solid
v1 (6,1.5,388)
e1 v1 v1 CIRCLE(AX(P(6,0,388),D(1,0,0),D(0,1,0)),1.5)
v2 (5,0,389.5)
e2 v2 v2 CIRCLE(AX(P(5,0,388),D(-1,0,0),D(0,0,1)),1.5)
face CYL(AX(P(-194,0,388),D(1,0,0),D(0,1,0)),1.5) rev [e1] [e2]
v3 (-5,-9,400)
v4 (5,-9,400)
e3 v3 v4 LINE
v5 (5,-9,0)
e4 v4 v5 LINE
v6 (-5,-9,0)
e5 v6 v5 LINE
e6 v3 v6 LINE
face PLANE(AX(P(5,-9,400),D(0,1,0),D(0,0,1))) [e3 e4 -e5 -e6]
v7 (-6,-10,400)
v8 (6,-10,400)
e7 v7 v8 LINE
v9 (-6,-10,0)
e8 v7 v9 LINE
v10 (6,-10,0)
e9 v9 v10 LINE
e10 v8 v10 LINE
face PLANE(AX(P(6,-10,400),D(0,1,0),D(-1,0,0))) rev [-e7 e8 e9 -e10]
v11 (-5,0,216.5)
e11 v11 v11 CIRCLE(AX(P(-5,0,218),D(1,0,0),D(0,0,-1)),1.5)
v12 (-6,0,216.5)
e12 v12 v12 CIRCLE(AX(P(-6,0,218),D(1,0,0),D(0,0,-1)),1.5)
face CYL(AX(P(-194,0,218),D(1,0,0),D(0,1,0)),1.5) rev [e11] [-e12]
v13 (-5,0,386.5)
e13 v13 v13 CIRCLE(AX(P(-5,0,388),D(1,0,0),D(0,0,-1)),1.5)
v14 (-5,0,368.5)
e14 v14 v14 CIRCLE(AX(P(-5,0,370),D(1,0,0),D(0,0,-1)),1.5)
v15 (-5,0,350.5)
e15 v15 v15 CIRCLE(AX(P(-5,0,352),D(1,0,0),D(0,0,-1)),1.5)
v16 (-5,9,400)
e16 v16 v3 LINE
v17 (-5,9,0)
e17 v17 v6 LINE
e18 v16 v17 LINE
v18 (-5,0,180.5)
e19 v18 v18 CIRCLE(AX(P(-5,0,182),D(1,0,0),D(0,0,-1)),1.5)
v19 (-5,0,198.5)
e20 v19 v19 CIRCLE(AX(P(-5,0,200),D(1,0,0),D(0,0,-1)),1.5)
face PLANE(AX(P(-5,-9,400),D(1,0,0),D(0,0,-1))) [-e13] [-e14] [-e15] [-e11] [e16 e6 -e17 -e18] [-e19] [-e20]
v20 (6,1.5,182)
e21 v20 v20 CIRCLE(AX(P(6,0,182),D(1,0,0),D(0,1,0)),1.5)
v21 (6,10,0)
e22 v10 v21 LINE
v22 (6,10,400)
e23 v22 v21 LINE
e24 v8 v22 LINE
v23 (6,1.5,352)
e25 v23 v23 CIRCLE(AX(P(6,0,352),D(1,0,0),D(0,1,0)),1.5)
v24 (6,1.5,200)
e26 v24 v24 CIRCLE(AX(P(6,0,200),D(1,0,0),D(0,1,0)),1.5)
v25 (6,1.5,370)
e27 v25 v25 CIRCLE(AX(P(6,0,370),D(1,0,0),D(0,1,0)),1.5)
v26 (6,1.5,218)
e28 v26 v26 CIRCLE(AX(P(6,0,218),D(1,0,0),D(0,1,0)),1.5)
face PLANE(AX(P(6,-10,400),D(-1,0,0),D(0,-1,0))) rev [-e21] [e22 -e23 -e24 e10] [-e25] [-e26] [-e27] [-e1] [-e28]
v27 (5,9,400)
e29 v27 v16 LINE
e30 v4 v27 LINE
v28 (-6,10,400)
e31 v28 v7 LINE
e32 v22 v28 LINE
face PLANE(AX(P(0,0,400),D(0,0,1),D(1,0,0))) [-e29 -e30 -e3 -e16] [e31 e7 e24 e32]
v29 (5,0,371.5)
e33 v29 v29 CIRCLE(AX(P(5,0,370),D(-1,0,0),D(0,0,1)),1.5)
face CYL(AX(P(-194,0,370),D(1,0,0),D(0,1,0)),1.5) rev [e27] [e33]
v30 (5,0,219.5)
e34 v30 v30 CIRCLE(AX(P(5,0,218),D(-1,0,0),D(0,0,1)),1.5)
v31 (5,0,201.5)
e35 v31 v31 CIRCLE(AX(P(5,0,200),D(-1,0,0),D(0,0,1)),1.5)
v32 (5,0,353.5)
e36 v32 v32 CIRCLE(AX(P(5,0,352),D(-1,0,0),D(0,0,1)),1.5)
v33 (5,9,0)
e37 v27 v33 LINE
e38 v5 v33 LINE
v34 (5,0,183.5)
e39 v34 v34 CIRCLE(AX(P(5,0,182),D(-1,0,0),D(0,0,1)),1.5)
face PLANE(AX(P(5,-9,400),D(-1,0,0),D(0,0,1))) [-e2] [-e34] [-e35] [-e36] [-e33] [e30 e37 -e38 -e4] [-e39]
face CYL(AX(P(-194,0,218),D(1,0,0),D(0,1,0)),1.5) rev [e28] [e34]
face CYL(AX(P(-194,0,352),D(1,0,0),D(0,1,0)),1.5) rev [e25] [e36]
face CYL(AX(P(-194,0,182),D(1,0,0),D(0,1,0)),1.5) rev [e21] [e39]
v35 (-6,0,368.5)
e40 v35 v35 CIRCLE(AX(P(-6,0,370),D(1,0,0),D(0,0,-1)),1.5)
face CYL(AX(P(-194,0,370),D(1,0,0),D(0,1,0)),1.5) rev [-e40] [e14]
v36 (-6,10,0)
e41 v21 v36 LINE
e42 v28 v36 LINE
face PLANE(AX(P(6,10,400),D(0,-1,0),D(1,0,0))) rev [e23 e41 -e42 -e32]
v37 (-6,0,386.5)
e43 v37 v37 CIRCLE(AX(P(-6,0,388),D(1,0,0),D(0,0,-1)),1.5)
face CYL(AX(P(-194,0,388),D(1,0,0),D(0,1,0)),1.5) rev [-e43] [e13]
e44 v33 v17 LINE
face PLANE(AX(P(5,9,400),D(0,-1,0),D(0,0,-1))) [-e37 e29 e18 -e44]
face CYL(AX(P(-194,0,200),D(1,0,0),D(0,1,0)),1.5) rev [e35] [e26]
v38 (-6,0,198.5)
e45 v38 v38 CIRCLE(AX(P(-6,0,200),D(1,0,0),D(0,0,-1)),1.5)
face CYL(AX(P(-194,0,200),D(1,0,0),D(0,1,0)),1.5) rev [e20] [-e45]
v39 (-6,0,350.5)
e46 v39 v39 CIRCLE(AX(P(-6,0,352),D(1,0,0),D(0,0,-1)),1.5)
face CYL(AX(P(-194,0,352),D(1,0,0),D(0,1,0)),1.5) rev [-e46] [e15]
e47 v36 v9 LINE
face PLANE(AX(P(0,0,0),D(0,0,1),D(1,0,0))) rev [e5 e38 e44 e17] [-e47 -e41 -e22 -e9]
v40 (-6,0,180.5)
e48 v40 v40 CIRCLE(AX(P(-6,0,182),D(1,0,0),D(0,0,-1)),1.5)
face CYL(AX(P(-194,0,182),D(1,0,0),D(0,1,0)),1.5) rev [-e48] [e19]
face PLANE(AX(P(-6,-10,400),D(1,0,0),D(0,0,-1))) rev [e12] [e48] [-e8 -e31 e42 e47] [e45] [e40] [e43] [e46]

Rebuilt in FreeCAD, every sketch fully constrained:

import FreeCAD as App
import Part
import Sketcher
from FreeCAD import Vector

doc = App.newDocument("Part")
body = doc.addObject("PartDesign::Body", "Body")

# Sketch on XY plane
sketch1 = doc.addObject("Sketcher::SketchObject", "Sketch")
body.addObject(sketch1)
sketch1.AttachmentSupport = (doc.XY_Plane, [""])
sketch1.MapMode = "FlatFace"
sketch1.addGeometry(Part.LineSegment(Vector(-6, 10, 0), Vector(-6, -10, 0)), False)
sketch1.addGeometry(Part.LineSegment(Vector(-6, -10, 0), Vector(6, -10, 0)), False)
sketch1.addGeometry(Part.LineSegment(Vector(6, -10, 0), Vector(6, 10, 0)), False)
sketch1.addGeometry(Part.LineSegment(Vector(6, 10, 0), Vector(-6, 10, 0)), False)
sketch1.addGeometry(Part.LineSegment(Vector(5, -9, 0), Vector(-5, -9, 0)), False)
sketch1.addGeometry(Part.LineSegment(Vector(-5, -9, 0), Vector(-5, 9, 0)), False)
sketch1.addGeometry(Part.LineSegment(Vector(-5, 9, 0), Vector(5, 9, 0)), False)
sketch1.addGeometry(Part.LineSegment(Vector(5, 9, 0), Vector(5, -9, 0)), False)
sketch1.addConstraint(Sketcher.Constraint("Coincident", 0, 2, 1, 1))
sketch1.addConstraint(Sketcher.Constraint("Coincident", 1, 2, 2, 1))
sketch1.addConstraint(Sketcher.Constraint("Coincident", 2, 2, 3, 1))
sketch1.addConstraint(Sketcher.Constraint("Coincident", 3, 2, 0, 1))
sketch1.addConstraint(Sketcher.Constraint("Coincident", 4, 2, 5, 1))
sketch1.addConstraint(Sketcher.Constraint("Coincident", 5, 2, 6, 1))
sketch1.addConstraint(Sketcher.Constraint("Coincident", 6, 2, 7, 1))
sketch1.addConstraint(Sketcher.Constraint("Coincident", 7, 2, 4, 1))
sketch1.addConstraint(Sketcher.Constraint("Vertical", 0))
sketch1.addConstraint(Sketcher.Constraint("Horizontal", 1))
sketch1.addConstraint(Sketcher.Constraint("Vertical", 2))
sketch1.addConstraint(Sketcher.Constraint("Horizontal", 3))
sketch1.addConstraint(Sketcher.Constraint("Horizontal", 4))
sketch1.addConstraint(Sketcher.Constraint("Vertical", 5))
sketch1.addConstraint(Sketcher.Constraint("Horizontal", 6))
sketch1.addConstraint(Sketcher.Constraint("Vertical", 7))
sketch1.addConstraint(Sketcher.Constraint("Symmetric", 0, 2, 2, 2, -1, 1))
sketch1.addConstraint(Sketcher.Constraint("Symmetric", 4, 2, 6, 2, -1, 1))
sketch1.addConstraint(Sketcher.Constraint("DistanceX", 1, 1, 1, 2, 12.0))
sketch1.addConstraint(Sketcher.Constraint("DistanceX", 4, 2, 4, 1, 10.0))
sketch1.addConstraint(Sketcher.Constraint("DistanceY", 0, 2, 0, 1, 20.0))
sketch1.addConstraint(Sketcher.Constraint("DistanceY", 5, 1, 5, 2, 18.0))
pad1 = doc.addObject("PartDesign::Pad", "Pad")
body.addObject(pad1)
pad1.Profile = sketch1
pad1.Length = 400

# Sketch on YZ plane
sketch2 = doc.addObject("Sketcher::SketchObject", "Sketch001")
body.addObject(sketch2)
sketch2.AttachmentSupport = (doc.YZ_Plane, [""])
sketch2.MapMode = "FlatFace"
sketch2.AttachmentOffset = App.Placement(Vector(0, 0, 6), App.Rotation())
sketch2.addGeometry(Part.Circle(Vector(0, 200, 0), Vector(0, 0, 1), 1.5), False)
sketch2.addGeometry(Part.Circle(Vector(0, 182, 0), Vector(0, 0, 1), 1.5), False)
sketch2.addGeometry(Part.Circle(Vector(0, 218, 0), Vector(0, 0, 1), 1.5), False)
sketch2.addGeometry(Part.Circle(Vector(0, 370, 0), Vector(0, 0, 1), 1.5), False)
sketch2.addGeometry(Part.Circle(Vector(0, 388, 0), Vector(0, 0, 1), 1.5), False)
sketch2.addGeometry(Part.Circle(Vector(0, 352, 0), Vector(0, 0, 1), 1.5), False)
sketch2.addConstraint(Sketcher.Constraint("Equal", 0, 1))
sketch2.addConstraint(Sketcher.Constraint("Equal", 1, 2))
sketch2.addConstraint(Sketcher.Constraint("Equal", 2, 3))
sketch2.addConstraint(Sketcher.Constraint("Equal", 3, 4))
sketch2.addConstraint(Sketcher.Constraint("Equal", 4, 5))
sketch2.addConstraint(Sketcher.Constraint("PointOnObject", 0, 3, -2))
sketch2.addConstraint(Sketcher.Constraint("PointOnObject", 1, 3, -2))
sketch2.addConstraint(Sketcher.Constraint("PointOnObject", 2, 3, -2))
sketch2.addConstraint(Sketcher.Constraint("PointOnObject", 3, 3, -2))
sketch2.addConstraint(Sketcher.Constraint("PointOnObject", 4, 3, -2))
sketch2.addConstraint(Sketcher.Constraint("PointOnObject", 5, 3, -2))
sketch2.addConstraint(Sketcher.Constraint("Diameter", 0, 3.0))
sketch2.addConstraint(Sketcher.Constraint("DistanceY", -1, 1, 0, 3, 200.0))
sketch2.addConstraint(Sketcher.Constraint("DistanceY", -1, 1, 1, 3, 182.0))
sketch2.addConstraint(Sketcher.Constraint("DistanceY", -1, 1, 2, 3, 218.0))
sketch2.addConstraint(Sketcher.Constraint("DistanceY", -1, 1, 3, 3, 370.0))
sketch2.addConstraint(Sketcher.Constraint("DistanceY", -1, 1, 4, 3, 388.0))
sketch2.addConstraint(Sketcher.Constraint("DistanceY", -1, 1, 5, 3, 352.0))
pocket1 = doc.addObject("PartDesign::Pocket", "Pocket")
body.addObject(pocket1)
pocket1.Profile = sketch2
pocket1.Length = 200

doc.recompute()
